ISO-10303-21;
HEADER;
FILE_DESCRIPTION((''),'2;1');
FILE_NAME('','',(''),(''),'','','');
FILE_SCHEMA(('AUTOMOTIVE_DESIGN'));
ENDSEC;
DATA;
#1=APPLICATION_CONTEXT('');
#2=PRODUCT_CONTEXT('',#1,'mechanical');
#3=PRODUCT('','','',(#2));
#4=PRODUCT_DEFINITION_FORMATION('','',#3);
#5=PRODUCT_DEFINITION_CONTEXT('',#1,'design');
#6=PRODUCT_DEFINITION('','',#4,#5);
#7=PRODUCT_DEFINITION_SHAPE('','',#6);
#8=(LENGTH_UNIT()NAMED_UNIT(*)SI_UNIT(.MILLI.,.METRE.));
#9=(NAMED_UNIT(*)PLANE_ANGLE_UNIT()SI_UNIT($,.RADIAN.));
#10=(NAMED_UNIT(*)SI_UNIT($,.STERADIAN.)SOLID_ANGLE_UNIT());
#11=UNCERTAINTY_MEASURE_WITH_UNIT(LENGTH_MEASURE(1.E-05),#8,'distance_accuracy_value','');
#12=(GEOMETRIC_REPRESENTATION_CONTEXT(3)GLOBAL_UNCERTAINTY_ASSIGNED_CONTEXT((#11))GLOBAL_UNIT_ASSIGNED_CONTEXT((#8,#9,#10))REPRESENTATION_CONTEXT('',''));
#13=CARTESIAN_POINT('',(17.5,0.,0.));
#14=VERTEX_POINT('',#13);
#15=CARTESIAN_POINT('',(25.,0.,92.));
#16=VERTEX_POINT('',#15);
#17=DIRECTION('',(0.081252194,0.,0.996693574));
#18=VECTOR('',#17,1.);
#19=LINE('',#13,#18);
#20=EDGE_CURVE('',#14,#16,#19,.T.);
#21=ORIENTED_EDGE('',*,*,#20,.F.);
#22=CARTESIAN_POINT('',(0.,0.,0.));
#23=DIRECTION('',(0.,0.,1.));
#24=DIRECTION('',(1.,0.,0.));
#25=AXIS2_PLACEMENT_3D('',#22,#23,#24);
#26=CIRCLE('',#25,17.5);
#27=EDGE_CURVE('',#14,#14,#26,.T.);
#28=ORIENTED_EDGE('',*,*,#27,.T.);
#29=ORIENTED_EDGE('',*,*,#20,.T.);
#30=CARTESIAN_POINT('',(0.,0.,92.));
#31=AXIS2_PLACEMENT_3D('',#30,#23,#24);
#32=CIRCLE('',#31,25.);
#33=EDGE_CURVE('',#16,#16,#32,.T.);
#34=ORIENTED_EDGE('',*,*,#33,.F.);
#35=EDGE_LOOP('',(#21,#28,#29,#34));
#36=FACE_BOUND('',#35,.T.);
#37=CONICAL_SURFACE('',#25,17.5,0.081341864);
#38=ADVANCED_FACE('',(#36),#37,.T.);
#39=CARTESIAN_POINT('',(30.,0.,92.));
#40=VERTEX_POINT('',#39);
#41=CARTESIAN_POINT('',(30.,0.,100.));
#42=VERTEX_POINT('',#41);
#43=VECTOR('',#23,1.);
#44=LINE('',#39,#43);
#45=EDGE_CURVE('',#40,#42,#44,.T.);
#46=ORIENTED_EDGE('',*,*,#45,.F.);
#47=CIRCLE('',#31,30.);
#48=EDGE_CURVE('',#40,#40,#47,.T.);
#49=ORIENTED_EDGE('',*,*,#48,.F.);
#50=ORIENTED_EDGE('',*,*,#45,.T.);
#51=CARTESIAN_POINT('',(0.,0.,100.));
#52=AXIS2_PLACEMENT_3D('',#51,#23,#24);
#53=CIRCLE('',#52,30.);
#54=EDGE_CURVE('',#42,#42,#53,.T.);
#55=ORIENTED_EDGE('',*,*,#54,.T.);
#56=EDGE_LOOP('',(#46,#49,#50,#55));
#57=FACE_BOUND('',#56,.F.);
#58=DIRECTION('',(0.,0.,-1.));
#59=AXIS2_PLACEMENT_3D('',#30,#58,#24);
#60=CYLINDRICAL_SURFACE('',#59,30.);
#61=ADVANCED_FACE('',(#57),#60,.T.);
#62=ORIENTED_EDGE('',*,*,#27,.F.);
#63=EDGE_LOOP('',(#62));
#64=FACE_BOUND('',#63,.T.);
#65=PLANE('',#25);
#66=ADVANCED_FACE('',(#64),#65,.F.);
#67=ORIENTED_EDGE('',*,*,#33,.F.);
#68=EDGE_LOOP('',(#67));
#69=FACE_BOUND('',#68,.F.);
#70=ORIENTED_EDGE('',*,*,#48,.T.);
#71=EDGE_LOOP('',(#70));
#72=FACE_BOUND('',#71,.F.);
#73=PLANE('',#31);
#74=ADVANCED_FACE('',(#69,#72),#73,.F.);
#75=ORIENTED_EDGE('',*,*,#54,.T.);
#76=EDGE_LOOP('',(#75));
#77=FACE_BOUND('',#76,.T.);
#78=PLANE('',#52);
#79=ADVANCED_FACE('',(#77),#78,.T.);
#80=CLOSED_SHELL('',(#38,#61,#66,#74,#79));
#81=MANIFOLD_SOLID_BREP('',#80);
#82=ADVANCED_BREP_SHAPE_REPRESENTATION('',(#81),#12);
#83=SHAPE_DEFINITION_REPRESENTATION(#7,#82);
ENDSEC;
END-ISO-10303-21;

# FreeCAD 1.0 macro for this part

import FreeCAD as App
import Part
import Sketcher
Q = App.Units.Quantity


def add_polygon(sketch, points):
    """Adds a closed chain of lines whose ends are joined by coincident constraints."""
    first, n = sketch.GeometryCount, len(points)
    for a, b in zip(points, points[1:] + points[:1]):
        sketch.addGeometry(Part.LineSegment(App.Vector(*a, 0), App.Vector(*b, 0)), False)
    for i in range(n):
        sketch.addConstraint(Sketcher.Constraint("Coincident", first + i, 2, first + (i + 1) % n, 1))

doc = App.newDocument("Part")
body = doc.addObject("PartDesign::Body", "Body")

# Sketch on XZ plane
sketch1 = body.newObject("Sketcher::SketchObject", "Sketch")
sketch1.AttachmentSupport = (doc.getObject("XZ_Plane"), [""])
sketch1.MapMode = "FlatFace"
add_polygon(sketch1, [(0, 0), (17.5, 0), (25, 92), (0, 92)])  # lines 0-3
sketch1.addConstraint([
    Sketcher.Constraint("Horizontal", 0),
    Sketcher.Constraint("Horizontal", 2),
    Sketcher.Constraint("Vertical", 3),
    Sketcher.Constraint("Coincident", 3, 2, -1, 1),
    Sketcher.Constraint("DistanceX", 2, 2, 2, 1, Q("25 mm")),
    Sketcher.Constraint("DistanceY", 3, 2, 3, 1, Q("92 mm")),
    Sketcher.Constraint("DistanceX", 0, 1, 0, 2, Q("17.5 mm")),
])
revolution = body.newObject("PartDesign::Revolution", "Revolution")
revolution.Profile = sketch1
revolution.ReferenceAxis = (sketch1, ["V_Axis"])
revolution.Angle = 360
body2 = doc.addObject("PartDesign::Body", "Body001")

# Sketch on XY plane
sketch2 = body2.newObject("Sketcher::SketchObject", "Sketch001")
sketch2.AttachmentSupport = (doc.getObject("XY_Plane001"), [""])
sketch2.MapMode = "FlatFace"
sketch2.AttachmentOffset = App.Placement(App.Vector(0, 0, 92), App.Rotation())
sketch2.addGeometry(Part.Circle(App.Vector(0, 0, 0), App.Vector(0, 0, 1), 30), False)
sketch2.addConstraint([
    Sketcher.Constraint("Coincident", 0, 3, -1, 1),
    Sketcher.Constraint("Diameter", 0, Q("60 mm")),
])
pad1 = body2.newObject("PartDesign::Pad", "Pad")
pad1.Profile = sketch2
pad1.Length = 8
doc.recompute()

boolean = body2.newObject("PartDesign::Boolean", "Boolean")
boolean.Type = "Fuse"
boolean.addObjects([body])

doc.recompute()
